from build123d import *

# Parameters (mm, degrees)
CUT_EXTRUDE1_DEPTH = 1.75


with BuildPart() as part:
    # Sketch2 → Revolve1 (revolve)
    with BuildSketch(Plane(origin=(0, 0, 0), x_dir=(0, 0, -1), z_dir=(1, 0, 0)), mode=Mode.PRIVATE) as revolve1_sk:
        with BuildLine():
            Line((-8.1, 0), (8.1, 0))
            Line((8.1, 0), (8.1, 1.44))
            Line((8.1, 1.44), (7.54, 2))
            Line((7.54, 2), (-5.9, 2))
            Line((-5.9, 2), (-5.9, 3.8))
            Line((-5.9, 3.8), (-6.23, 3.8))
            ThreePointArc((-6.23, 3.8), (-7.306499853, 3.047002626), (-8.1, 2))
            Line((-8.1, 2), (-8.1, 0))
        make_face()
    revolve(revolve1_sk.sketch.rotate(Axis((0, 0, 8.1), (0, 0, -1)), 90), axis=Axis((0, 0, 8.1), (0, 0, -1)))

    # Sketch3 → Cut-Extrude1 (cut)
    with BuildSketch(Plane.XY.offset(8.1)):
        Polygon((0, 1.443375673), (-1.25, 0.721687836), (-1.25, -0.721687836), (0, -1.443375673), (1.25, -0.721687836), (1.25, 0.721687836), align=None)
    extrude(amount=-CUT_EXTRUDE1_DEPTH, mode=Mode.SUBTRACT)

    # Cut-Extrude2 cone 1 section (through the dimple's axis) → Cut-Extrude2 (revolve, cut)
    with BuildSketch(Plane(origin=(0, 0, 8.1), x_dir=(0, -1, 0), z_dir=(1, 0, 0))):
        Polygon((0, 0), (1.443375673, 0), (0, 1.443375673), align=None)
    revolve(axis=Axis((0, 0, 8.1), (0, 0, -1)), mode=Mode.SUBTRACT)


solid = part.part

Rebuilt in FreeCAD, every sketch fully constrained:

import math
import FreeCAD as App
import Part
import Sketcher
from FreeCAD import Vector
Q = App.Units.Quantity

doc = App.newDocument("Part")
body = doc.addObject("PartDesign::Body", "Body")

# Sketch on YZ plane
sketch1 = body.newObject("Sketcher::SketchObject", "Sketch")
sketch1.AttachmentSupport = (doc.getObject("YZ_Plane"), [""])
sketch1.MapMode = "FlatFace"
sketch1.addGeometry(Part.LineSegment(Vector(0, 8.1, 0), Vector(0, -8.1, 0)), False)
sketch1.addGeometry(Part.LineSegment(Vector(0, -8.1, 0), Vector(1.44, -8.1, 0)), False)
sketch1.addGeometry(Part.LineSegment(Vector(1.44, -8.1, 0), Vector(2, -7.54, 0)), False)
sketch1.addGeometry(Part.LineSegment(Vector(2, -7.54, 0), Vector(2, 5.9, 0)), False)
sketch1.addGeometry(Part.LineSegment(Vector(2, 5.9, 0), Vector(3.8, 5.9, 0)), False)
sketch1.addGeometry(Part.LineSegment(Vector(3.8, 5.9, 0), Vector(3.8, 6.23, 0)), False)
sketch1.addGeometry(Part.ArcOfCircle(Part.Circle(Vector(0, 4.373556, 0), Vector(0, 0, 1), 4.22923), math.radians(26.03726), math.radians(61.777335)), False)
sketch1.addGeometry(Part.LineSegment(Vector(2, 8.1, 0), Vector(0, 8.1, 0)), False)
sketch1.addConstraint(Sketcher.Constraint("Coincident", 0, 2, 1, 1))
sketch1.addConstraint(Sketcher.Constraint("Coincident", 1, 2, 2, 1))
sketch1.addConstraint(Sketcher.Constraint("Coincident", 2, 2, 3, 1))
sketch1.addConstraint(Sketcher.Constraint("Coincident", 3, 2, 4, 1))
sketch1.addConstraint(Sketcher.Constraint("Coincident", 4, 2, 5, 1))
sketch1.addConstraint(Sketcher.Constraint("Coincident", 5, 2, 6, 1))
sketch1.addConstraint(Sketcher.Constraint("Coincident", 6, 2, 7, 1))
sketch1.addConstraint(Sketcher.Constraint("Coincident", 7, 2, 0, 1))
sketch1.addConstraint(Sketcher.Constraint("Vertical", 0))
sketch1.addConstraint(Sketcher.Constraint("Horizontal", 1))
sketch1.addConstraint(Sketcher.Constraint("Vertical", 3))
sketch1.addConstraint(Sketcher.Constraint("Horizontal", 4))
sketch1.addConstraint(Sketcher.Constraint("Vertical", 5))
sketch1.addConstraint(Sketcher.Constraint("Horizontal", 7))
sketch1.addConstraint(Sketcher.Constraint("Symmetric", 0, 2, 7, 2, -1, 1))
sketch1.addConstraint(Sketcher.Constraint("PointOnObject", 6, 3, -2))
sketch1.addConstraint(Sketcher.Constraint("Vertical", 3, 2, 6, 2))
sketch1.addConstraint(Sketcher.Constraint("DistanceX", 7, 2, 7, 1, Q("2 mm")))
sketch1.addConstraint(Sketcher.Constraint("Angle", 2, Q("45 deg")))
sketch1.addConstraint(Sketcher.Constraint("DistanceX", 4, 1, 4, 2, Q("1.8 mm")))
sketch1.addConstraint(Sketcher.Constraint("DistanceY", 0, 2, 0, 1, Q("16.2 mm")))
sketch1.addConstraint(Sketcher.Constraint("DistanceY", 1, 2, 3, 2, Q("14 mm")))
sketch1.addConstraint(Sketcher.Constraint("DistanceX", 1, 1, 1, 2, Q("1.44 mm")))
sketch1.addConstraint(Sketcher.Constraint("DistanceY", 5, 1, 5, 2, Q("0.33 mm")))
revolution = body.newObject("PartDesign::Revolution", "Revolution")
revolution.Profile = sketch1
revolution.ReferenceAxis = (sketch1, ["V_Axis"])
revolution.Angle = 360

# Sketch on XY plane
sketch2 = body.newObject("Sketcher::SketchObject", "Sketch001")
sketch2.AttachmentSupport = (doc.getObject("XY_Plane"), [""])
sketch2.MapMode = "FlatFace"
sketch2.AttachmentOffset = App.Placement(Vector(0, 0, 8.1), App.Rotation())
sketch2.addGeometry(Part.LineSegment(Vector(0, 1.443376, 0), Vector(-1.25, 0.721688, 0)), False)
sketch2.addGeometry(Part.LineSegment(Vector(-1.25, 0.721688, 0), Vector(-1.25, -0.721688, 0)), False)
sketch2.addGeometry(Part.LineSegment(Vector(-1.25, -0.721688, 0), Vector(0, -1.443376, 0)), False)
sketch2.addGeometry(Part.LineSegment(Vector(0, -1.443376, 0), Vector(1.25, -0.721688, 0)), False)
sketch2.addGeometry(Part.LineSegment(Vector(1.25, -0.721688, 0), Vector(1.25, 0.721688, 0)), False)
sketch2.addGeometry(Part.LineSegment(Vector(1.25, 0.721688, 0), Vector(0, 1.443376, 0)), False)
sketch2.addConstraint(Sketcher.Constraint("Coincident", 0, 2, 1, 1))
sketch2.addConstraint(Sketcher.Constraint("Coincident", 1, 2, 2, 1))
sketch2.addConstraint(Sketcher.Constraint("Coincident", 2, 2, 3, 1))
sketch2.addConstraint(Sketcher.Constraint("Coincident", 3, 2, 4, 1))
sketch2.addConstraint(Sketcher.Constraint("Coincident", 4, 2, 5, 1))
sketch2.addConstraint(Sketcher.Constraint("Coincident", 5, 2, 0, 1))
sketch2.addConstraint(Sketcher.Constraint("Vertical", 1))
sketch2.addConstraint(Sketcher.Constraint("Vertical", 4))
sketch2.addConstraint(Sketcher.Constraint("Symmetric", 0, 2, 3, 2, -1, 1))
sketch2.addConstraint(Sketcher.Constraint("Symmetric", 2, 2, 5, 2, -1, 1))
sketch2.addConstraint(Sketcher.Constraint("PointOnObject", 2, 2, -2))
sketch2.addConstraint(Sketcher.Constraint("Parallel", 2, 5))
sketch2.addConstraint(Sketcher.Constraint("Horizontal", 1, 2, 3, 2))
sketch2.addConstraint(Sketcher.Constraint("Angle", 0, Q("-150 deg")))
sketch2.addConstraint(Sketcher.Constraint("DistanceX", 1, 2, 3, 2, Q("2.5 mm")))
sketch2.addConstraint(Sketcher.Constraint("DistanceY", 1, 2, 1, 1, Q("1.443376 mm")))
pocket1 = body.newObject("PartDesign::Pocket", "Pocket")
pocket1.Profile = sketch2
pocket1.Length = 1.75

# Sketch on YZ plane
sketch3 = body.newObject("Sketcher::SketchObject", "Sketch002")
sketch3.AttachmentSupport = (doc.getObject("YZ_Plane"), [""])
sketch3.MapMode = "FlatFace"
sketch3.addGeometry(Part.LineSegment(Vector(0, 8.1, 0), Vector(-1.443376, 8.1, 0)), False)
sketch3.addGeometry(Part.LineSegment(Vector(-1.443376, 8.1, 0), Vector(0, 6.656624, 0)), False)
sketch3.addGeometry(Part.LineSegment(Vector(0, 6.656624, 0), Vector(0, 8.1, 0)), False)
sketch3.addConstraint(Sketcher.Constraint("Coincident", 0, 2, 1, 1))
sketch3.addConstraint(Sketcher.Constraint("Coincident", 1, 2, 2, 1))
sketch3.addConstraint(Sketcher.Constraint("Coincident", 2, 2, 0, 1))
sketch3.addConstraint(Sketcher.Constraint("Horizontal", 0))
sketch3.addConstraint(Sketcher.Constraint("Vertical", 2))
sketch3.addConstraint(Sketcher.Constraint("PointOnObject", 1, 2, -2))
sketch3.addConstraint(Sketcher.Constraint("Equal", 0, 2))
sketch3.addConstraint(Sketcher.Constraint("DistanceY", -1, 1, 0, 2, Q("8.1 mm")))
sketch3.addConstraint(Sketcher.Constraint("Distance", 1, Q("2.041241 mm")))
groove = body.newObject("PartDesign::Groove", "Groove")
groove.Profile = sketch3
groove.ReferenceAxis = (sketch3, ["V_Axis"])
groove.Angle = 360

doc.recompute()
